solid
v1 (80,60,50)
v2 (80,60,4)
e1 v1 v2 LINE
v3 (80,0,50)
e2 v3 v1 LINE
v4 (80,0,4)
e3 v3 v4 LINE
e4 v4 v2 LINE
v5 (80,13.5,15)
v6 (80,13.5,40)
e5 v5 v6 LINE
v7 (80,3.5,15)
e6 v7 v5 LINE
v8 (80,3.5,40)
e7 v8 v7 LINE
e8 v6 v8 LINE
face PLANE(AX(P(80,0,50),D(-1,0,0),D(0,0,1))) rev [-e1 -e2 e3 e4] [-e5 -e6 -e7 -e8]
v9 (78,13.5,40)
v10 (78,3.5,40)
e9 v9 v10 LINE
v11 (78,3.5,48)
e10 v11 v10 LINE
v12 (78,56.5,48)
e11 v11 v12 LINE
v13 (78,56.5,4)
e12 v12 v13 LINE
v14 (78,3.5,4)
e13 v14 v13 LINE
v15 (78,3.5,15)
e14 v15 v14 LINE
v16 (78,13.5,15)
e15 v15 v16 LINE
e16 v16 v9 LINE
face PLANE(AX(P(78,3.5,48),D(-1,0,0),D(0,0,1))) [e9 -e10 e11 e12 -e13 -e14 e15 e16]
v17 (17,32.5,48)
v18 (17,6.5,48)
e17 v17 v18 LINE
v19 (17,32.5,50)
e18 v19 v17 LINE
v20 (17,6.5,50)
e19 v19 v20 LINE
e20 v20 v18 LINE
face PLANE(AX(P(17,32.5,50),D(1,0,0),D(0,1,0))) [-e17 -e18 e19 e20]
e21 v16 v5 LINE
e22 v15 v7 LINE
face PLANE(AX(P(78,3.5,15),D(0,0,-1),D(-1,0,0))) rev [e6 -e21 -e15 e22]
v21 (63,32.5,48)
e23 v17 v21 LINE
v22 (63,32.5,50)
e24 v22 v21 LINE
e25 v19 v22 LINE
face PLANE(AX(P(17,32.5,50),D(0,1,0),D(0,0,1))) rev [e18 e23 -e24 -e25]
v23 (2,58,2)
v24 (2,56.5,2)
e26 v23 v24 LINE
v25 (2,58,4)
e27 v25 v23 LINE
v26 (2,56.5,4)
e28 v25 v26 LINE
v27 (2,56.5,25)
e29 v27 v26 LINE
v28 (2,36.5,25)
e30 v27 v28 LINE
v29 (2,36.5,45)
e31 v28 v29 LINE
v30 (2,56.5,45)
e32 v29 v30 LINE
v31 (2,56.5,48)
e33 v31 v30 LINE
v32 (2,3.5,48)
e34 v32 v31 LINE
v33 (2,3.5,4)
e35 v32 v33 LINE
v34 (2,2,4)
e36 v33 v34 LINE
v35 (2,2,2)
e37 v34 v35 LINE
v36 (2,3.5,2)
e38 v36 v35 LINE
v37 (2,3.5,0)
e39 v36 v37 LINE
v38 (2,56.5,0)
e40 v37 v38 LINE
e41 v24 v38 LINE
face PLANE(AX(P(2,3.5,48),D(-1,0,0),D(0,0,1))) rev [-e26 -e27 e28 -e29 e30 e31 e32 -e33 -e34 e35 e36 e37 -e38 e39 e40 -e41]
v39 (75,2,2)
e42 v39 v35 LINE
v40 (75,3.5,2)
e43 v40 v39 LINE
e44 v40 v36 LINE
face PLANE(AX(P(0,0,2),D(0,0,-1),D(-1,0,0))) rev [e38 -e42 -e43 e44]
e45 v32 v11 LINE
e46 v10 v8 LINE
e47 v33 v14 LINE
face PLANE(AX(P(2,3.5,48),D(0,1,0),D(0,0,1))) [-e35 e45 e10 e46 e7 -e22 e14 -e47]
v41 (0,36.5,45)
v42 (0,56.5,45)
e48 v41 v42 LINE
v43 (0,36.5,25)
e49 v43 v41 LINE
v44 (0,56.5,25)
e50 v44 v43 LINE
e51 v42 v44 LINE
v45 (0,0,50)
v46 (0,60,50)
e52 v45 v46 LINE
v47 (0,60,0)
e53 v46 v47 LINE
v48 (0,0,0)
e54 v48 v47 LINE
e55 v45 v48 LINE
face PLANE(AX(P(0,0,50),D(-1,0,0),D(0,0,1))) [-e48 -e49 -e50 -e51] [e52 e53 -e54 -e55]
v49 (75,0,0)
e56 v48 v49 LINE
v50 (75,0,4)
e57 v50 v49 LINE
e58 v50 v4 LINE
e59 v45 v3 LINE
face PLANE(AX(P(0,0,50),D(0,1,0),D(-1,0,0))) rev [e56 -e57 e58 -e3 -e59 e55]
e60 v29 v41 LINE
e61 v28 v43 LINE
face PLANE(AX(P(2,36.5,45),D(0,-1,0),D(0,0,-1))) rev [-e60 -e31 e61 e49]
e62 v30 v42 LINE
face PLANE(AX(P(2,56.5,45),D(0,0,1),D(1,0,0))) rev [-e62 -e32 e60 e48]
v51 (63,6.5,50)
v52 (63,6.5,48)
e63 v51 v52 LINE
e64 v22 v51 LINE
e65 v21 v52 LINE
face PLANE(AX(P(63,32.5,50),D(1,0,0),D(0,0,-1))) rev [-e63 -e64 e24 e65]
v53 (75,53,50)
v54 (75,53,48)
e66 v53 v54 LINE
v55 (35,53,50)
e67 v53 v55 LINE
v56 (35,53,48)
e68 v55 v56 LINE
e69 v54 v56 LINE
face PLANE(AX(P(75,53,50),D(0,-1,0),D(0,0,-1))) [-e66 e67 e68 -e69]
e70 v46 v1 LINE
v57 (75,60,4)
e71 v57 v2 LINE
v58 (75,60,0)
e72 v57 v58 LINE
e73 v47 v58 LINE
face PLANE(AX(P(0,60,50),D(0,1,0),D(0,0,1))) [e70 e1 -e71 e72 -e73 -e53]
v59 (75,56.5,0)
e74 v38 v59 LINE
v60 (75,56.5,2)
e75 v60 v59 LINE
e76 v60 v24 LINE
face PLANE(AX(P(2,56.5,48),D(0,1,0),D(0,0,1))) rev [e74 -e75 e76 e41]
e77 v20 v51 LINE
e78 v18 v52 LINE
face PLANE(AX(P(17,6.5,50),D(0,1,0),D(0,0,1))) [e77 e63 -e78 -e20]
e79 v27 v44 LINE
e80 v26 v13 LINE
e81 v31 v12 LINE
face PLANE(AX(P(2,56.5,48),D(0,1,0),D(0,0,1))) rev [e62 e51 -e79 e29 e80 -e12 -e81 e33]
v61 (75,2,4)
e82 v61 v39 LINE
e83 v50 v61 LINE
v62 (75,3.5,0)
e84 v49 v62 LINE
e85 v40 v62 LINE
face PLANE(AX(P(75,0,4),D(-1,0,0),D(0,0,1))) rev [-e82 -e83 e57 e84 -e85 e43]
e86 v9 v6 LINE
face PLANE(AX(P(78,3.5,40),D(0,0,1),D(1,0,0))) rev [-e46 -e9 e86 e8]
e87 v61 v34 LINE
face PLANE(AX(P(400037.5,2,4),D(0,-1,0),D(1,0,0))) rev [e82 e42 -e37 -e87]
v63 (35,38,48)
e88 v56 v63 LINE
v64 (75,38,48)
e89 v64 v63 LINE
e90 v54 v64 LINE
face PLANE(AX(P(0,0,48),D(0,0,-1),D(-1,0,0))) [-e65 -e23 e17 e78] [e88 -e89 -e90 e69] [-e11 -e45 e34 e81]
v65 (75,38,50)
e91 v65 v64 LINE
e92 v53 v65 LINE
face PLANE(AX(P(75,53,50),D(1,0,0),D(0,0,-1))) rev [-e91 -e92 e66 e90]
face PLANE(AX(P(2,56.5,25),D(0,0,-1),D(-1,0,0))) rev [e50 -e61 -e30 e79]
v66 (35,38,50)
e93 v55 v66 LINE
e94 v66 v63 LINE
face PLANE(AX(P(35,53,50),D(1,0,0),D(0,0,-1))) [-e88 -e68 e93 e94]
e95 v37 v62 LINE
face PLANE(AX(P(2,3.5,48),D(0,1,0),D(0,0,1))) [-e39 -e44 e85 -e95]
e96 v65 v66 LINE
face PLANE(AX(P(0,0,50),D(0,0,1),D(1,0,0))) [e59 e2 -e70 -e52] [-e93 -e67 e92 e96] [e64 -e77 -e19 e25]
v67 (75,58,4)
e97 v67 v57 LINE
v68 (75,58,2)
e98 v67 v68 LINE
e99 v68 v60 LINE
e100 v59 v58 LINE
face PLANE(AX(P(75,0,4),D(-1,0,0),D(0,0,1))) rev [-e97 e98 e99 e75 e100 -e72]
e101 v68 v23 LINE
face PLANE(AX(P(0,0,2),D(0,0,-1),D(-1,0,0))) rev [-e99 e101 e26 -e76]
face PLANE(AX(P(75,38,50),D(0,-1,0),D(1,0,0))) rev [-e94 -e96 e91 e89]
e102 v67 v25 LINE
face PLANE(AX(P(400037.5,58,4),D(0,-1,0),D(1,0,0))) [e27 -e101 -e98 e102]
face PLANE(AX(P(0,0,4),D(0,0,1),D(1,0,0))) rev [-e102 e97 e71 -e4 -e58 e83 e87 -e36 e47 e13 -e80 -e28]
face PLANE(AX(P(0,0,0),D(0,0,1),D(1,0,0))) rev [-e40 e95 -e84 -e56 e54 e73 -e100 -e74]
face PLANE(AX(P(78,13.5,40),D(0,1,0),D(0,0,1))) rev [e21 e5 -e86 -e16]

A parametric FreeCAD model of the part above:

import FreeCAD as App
import Part
import Sketcher

V = App.Vector
Q = App.Units.Quantity

doc = App.newDocument("Part")
params = doc.addObject("Spreadsheet::Sheet", "Params")
for row, (alias, value) in enumerate([
    ("sketch1_width", "80 mm"),
    ("sketch1_height", "60 mm"),
    ("pad1_length", "50 mm"),
    ("sketch2_width", "76 mm"),
    ("sketch2_height", "53 mm"),
    ("pocket1_length", "48 mm"),
    ("sketch3_width", "40 mm"),
    ("sketch3_height", "15 mm"),
    ("pocket2_length", "50 mm"),
    ("sketch4_width", "46 mm"),
    ("sketch4_height", "26 mm"),
    ("pocket3_length", "50 mm"),
    ("sketch5_width", "5 mm"),
    ("sketch5_width2", "3 mm"),
    ("sketch5_height", "60 mm"),
    ("sketch5_height2", "53 mm"),
    ("pocket4_length", "4 mm"),
    ("sketch6_width", "73 mm"),
    ("sketch6_height", "56 mm"),
    ("pocket5_length", "2 mm"),
    ("sketch7_width", "20 mm"),
    ("pocket6_length", "2 mm"),
    ("sketch8_width", "10 mm"),
    ("sketch8_height", "25 mm"),
    ("pocket7_length", "2 mm"),
], start=1):
    params.set(f"A{row}", alias)
    params.set(f"B{row}", "=" + value)
    params.setAlias(f"B{row}", alias)

body = doc.addObject("PartDesign::Body", "Body")

# Sketch on XY plane
sketch1 = body.newObject("Sketcher::SketchObject", "Sketch")
sketch1.AttachmentSupport = (doc.getObject("XY_Plane"), [""])
sketch1.MapMode = "FlatFace"
sketch1.addGeometry([
    Part.LineSegment(V(0, 60, 0), V(0, 0, 0)),
    Part.LineSegment(V(0, 0, 0), V(80, 0, 0)),
    Part.LineSegment(V(80, 0, 0), V(80, 60, 0)),
    Part.LineSegment(V(80, 60, 0), V(0, 60, 0)),
], False)
sketch1.addConstraint([
    Sketcher.Constraint("Coincident", 0, 2, 1, 1),
    Sketcher.Constraint("Coincident", 1, 2, 2, 1),
    Sketcher.Constraint("Coincident", 2, 2, 3, 1),
    Sketcher.Constraint("Coincident", 3, 2, 0, 1),
    Sketcher.Constraint("Vertical", 0),
    Sketcher.Constraint("Horizontal", 1),
    Sketcher.Constraint("Vertical", 2),
    Sketcher.Constraint("Horizontal", 3),
    Sketcher.Constraint("Coincident", 0, 2, -1, 1),
    Sketcher.Constraint("DistanceX", 1, 1, 1, 2, Q("80 mm")),
    Sketcher.Constraint("DistanceY", 0, 2, 0, 1, Q("60 mm")),
])
sketch1.setExpression("Constraints[9]", "Params.sketch1_width")
sketch1.setExpression("Constraints[10]", "Params.sketch1_height")
pad1 = body.newObject("PartDesign::Pad", "Pad")
pad1.Profile = sketch1
pad1.setExpression("Length", "Params.pad1_length")

# Sketch on XY plane
sketch2 = body.newObject("Sketcher::SketchObject", "Sketch001")
sketch2.AttachmentSupport = (doc.getObject("XY_Plane"), [""])
sketch2.MapMode = "FlatFace"
sketch2.addGeometry([
    Part.LineSegment(V(2, 56, 0), V(2, 4, 0)),
    Part.LineSegment(V(2, 4, 0), V(78, 4, 0)),
    Part.LineSegment(V(78, 4, 0), V(78, 56, 0)),
    Part.LineSegment(V(78, 56, 0), V(2, 56, 0)),
], False)
sketch2.addConstraint([
    Sketcher.Constraint("Coincident", 0, 2, 1, 1),
    Sketcher.Constraint("Coincident", 1, 2, 2, 1),
    Sketcher.Constraint("Coincident", 2, 2, 3, 1),
    Sketcher.Constraint("Coincident", 3, 2, 0, 1),
    Sketcher.Constraint("Vertical", 0),
    Sketcher.Constraint("Horizontal", 1),
    Sketcher.Constraint("Vertical", 2),
    Sketcher.Constraint("Horizontal", 3),
    Sketcher.Constraint("DistanceX", 1, 1, 1, 2, Q("76 mm")),
    Sketcher.Constraint("DistanceY", 0, 2, 0, 1, Q("53 mm")),
    Sketcher.Constraint("DistanceX", -1, 1, 0, 2, Q("2 mm")),
    Sketcher.Constraint("DistanceY", -1, 1, 0, 2, Q("3.5 mm")),
])
sketch2.setExpression("Constraints[8]", "Params.sketch2_width")
sketch2.setExpression("Constraints[9]", "Params.sketch2_height")
pocket1 = body.newObject("PartDesign::Pocket", "Pocket")
pocket1.Profile = sketch2
pocket1.setExpression("Length", "Params.pocket1_length")
pocket1.Reversed = True

# Sketch on XY plane
sketch3 = body.newObject("Sketcher::SketchObject", "Sketch002")
sketch3.AttachmentSupport = (doc.getObject("XY_Plane"), [""])
sketch3.MapMode = "FlatFace"
sketch3.addGeometry([
    Part.LineSegment(V(35, 53, 0), V(35, 38, 0)),
    Part.LineSegment(V(35, 38, 0), V(75, 38, 0)),
    Part.LineSegment(V(75, 38, 0), V(75, 53, 0)),
    Part.LineSegment(V(75, 53, 0), V(35, 53, 0)),
], False)
sketch3.addConstraint([
    Sketcher.Constraint("Coincident", 0, 2, 1, 1),
    Sketcher.Constraint("Coincident", 1, 2, 2, 1),
    Sketcher.Constraint("Coincident", 2, 2, 3, 1),
    Sketcher.Constraint("Coincident", 3, 2, 0, 1),
    Sketcher.Constraint("Vertical", 0),
    Sketcher.Constraint("Horizontal", 1),
    Sketcher.Constraint("Vertical", 2),
    Sketcher.Constraint("Horizontal", 3),
    Sketcher.Constraint("DistanceX", 1, 1, 1, 2, Q("40 mm")),
    Sketcher.Constraint("DistanceY", 0, 2, 0, 1, Q("15 mm")),
    Sketcher.Constraint("DistanceX", -1, 1, 0, 2, Q("35 mm")),
    Sketcher.Constraint("DistanceY", -1, 1, 0, 2, Q("38 mm")),
])
sketch3.setExpression("Constraints[8]", "Params.sketch3_width")
sketch3.setExpression("Constraints[9]", "Params.sketch3_height")
pocket2 = body.newObject("PartDesign::Pocket", "Pocket001")
pocket2.Profile = sketch3
pocket2.setExpression("Length", "Params.pocket2_length")
pocket2.Reversed = True

# Sketch on XY plane
sketch4 = body.newObject("Sketcher::SketchObject", "Sketch003")
sketch4.AttachmentSupport = (doc.getObject("XY_Plane"), [""])
sketch4.MapMode = "FlatFace"
sketch4.addGeometry([
    Part.LineSegment(V(17, 32, 0), V(17, 6, 0)),
    Part.LineSegment(V(17, 6, 0), V(63, 6, 0)),
    Part.LineSegment(V(63, 6, 0), V(63, 32, 0)),
    Part.LineSegment(V(63, 32, 0), V(17, 32, 0)),
], False)
sketch4.addConstraint([
    Sketcher.Constraint("Coincident", 0, 2, 1, 1),
    Sketcher.Constraint("Coincident", 1, 2, 2, 1),
    Sketcher.Constraint("Coincident", 2, 2, 3, 1),
    Sketcher.Constraint("Coincident", 3, 2, 0, 1),
    Sketcher.Constraint("Vertical", 0),
    Sketcher.Constraint("Horizontal", 1),
    Sketcher.Constraint("Vertical", 2),
    Sketcher.Constraint("Horizontal", 3),
    Sketcher.Constraint("DistanceX", 1, 1, 1, 2, Q("46 mm")),
    Sketcher.Constraint("DistanceY", 0, 2, 0, 1, Q("26 mm")),
    Sketcher.Constraint("DistanceX", -1, 1, 0, 2, Q("17 mm")),
    Sketcher.Constraint("DistanceY", -1, 1, 0, 2, Q("6.5 mm")),
])
sketch4.setExpression("Constraints[8]", "Params.sketch4_width")
sketch4.setExpression("Constraints[9]", "Params.sketch4_height")
pocket3 = body.newObject("PartDesign::Pocket", "Pocket002")
pocket3.Profile = sketch4
pocket3.setExpression("Length", "Params.pocket3_length")
pocket3.Reversed = True

# Sketch on XY plane
sketch5 = body.newObject("Sketcher::SketchObject", "Sketch004")
sketch5.AttachmentSupport = (doc.getObject("XY_Plane"), [""])
sketch5.MapMode = "FlatFace"
sketch5.addGeometry([
    Part.LineSegment(V(75, 0, 0), V(80, 0, 0)),  # 0
    Part.LineSegment(V(80, 0, 0), V(80, 60, 0)),  # 1
    Part.LineSegment(V(80, 60, 0), V(75, 60, 0)),  # 2
    Part.LineSegment(V(75, 60, 0), V(75, 56.5, 0)),  # 3
    Part.LineSegment(V(75, 56.5, 0), V(78, 56.5, 0)),  # 4
    Part.LineSegment(V(78, 56.5, 0), V(78, 3.5, 0)),  # 5
    Part.LineSegment(V(78, 3.5, 0), V(75, 3.5, 0)),  # 6
    Part.LineSegment(V(75, 3.5, 0), V(75, 0, 0)),  # 7
], False)
sketch5.addConstraint([
    Sketcher.Constraint("Coincident", 0, 2, 1, 1),
    Sketcher.Constraint("Coincident", 1, 2, 2, 1),
    Sketcher.Constraint("Coincident", 2, 2, 3, 1),
    Sketcher.Constraint("Coincident", 3, 2, 4, 1),
    Sketcher.Constraint("Coincident", 4, 2, 5, 1),
    Sketcher.Constraint("Coincident", 5, 2, 6, 1),
    Sketcher.Constraint("Coincident", 6, 2, 7, 1),
    Sketcher.Constraint("Coincident", 7, 2, 0, 1),
    Sketcher.Constraint("Horizontal", 0),
    Sketcher.Constraint("Vertical", 1),
    Sketcher.Constraint("Horizontal", 2),
    Sketcher.Constraint("Vertical", 3),
    Sketcher.Constraint("Horizontal", 4),
    Sketcher.Constraint("Vertical", 5),
    Sketcher.Constraint("Horizontal", 6),
    Sketcher.Constraint("Vertical", 7),
    Sketcher.Constraint("PointOnObject", 0, 2, -1),
    Sketcher.Constraint("Vertical", 3, 2, 6, 2),
    Sketcher.Constraint("Equal", 3, 7),
    Sketcher.Constraint("DistanceX", 0, 1, 0, 2, Q("5 mm")),
    Sketcher.Constraint("DistanceX", 4, 1, 4, 2, Q("3 mm")),
    Sketcher.Constraint("DistanceY", 1, 1, 1, 2, Q("60 mm")),
    Sketcher.Constraint("DistanceY", 5, 2, 5, 1, Q("53 mm")),
    Sketcher.Constraint("DistanceX", -1, 1, 0, 2, Q("80 mm")),
])
sketch5.setExpression("Constraints[19]", "Params.sketch5_width")
sketch5.setExpression("Constraints[20]", "Params.sketch5_width2")
sketch5.setExpression("Constraints[21]", "Params.sketch5_height")
sketch5.setExpression("Constraints[22]", "Params.sketch5_height2")
pocket4 = body.newObject("PartDesign::Pocket", "Pocket003")
pocket4.Profile = sketch5
pocket4.setExpression("Length", "Params.pocket4_length")
pocket4.Reversed = True

# Sketch on XY plane
sketch6 = body.newObject("Sketcher::SketchObject", "Sketch005")
sketch6.AttachmentSupport = (doc.getObject("XY_Plane"), [""])
sketch6.MapMode = "FlatFace"
sketch6.AttachmentOffset = App.Placement(V(0, 0, 2), App.Rotation())
sketch6.addGeometry([
    Part.LineSegment(V(2, 58, 0), V(2, 2, 0)),
    Part.LineSegment(V(2, 2, 0), V(75, 2, 0)),
    Part.LineSegment(V(75, 2, 0), V(75, 58, 0)),
    Part.LineSegment(V(75, 58, 0), V(2, 58, 0)),
], False)
sketch6.addConstraint([
    Sketcher.Constraint("Coincident", 0, 2, 1, 1),
    Sketcher.Constraint("Coincident", 1, 2, 2, 1),
    Sketcher.Constraint("Coincident", 2, 2, 3, 1),
    Sketcher.Constraint("Coincident", 3, 2, 0, 1),
    Sketcher.Constraint("Vertical", 0),
    Sketcher.Constraint("Horizontal", 1),
    Sketcher.Constraint("Vertical", 2),
    Sketcher.Constraint("Horizontal", 3),
    Sketcher.Constraint("DistanceX", 1, 1, 1, 2, Q("73 mm")),
    Sketcher.Constraint("DistanceY", 0, 2, 0, 1, Q("56 mm")),
    Sketcher.Constraint("DistanceX", -1, 1, 0, 2, Q("2 mm")),
    Sketcher.Constraint("DistanceY", -1, 1, 0, 2, Q("2 mm")),
])
sketch6.setExpression("Constraints[8]", "Params.sketch6_width")
sketch6.setExpression("Constraints[9]", "Params.sketch6_height")
pocket5 = body.newObject("PartDesign::Pocket", "Pocket004")
pocket5.Profile = sketch6
pocket5.setExpression("Length", "Params.pocket5_length")
pocket5.Reversed = True

# Sketch on YZ plane
sketch7 = body.newObject("Sketcher::SketchObject", "Sketch006")
sketch7.AttachmentSupport = (doc.getObject("YZ_Plane"), [""])
sketch7.MapMode = "FlatFace"
sketch7.addGeometry([
    Part.LineSegment(V(56, 25, 0), V(36, 25, 0)),
    Part.LineSegment(V(36, 25, 0), V(36, 45, 0)),
    Part.LineSegment(V(36, 45, 0), V(56, 45, 0)),
    Part.LineSegment(V(56, 45, 0), V(56, 25, 0)),
], False)
sketch7.addConstraint([
    Sketcher.Constraint("Coincident", 0, 2, 1, 1),
    Sketcher.Constraint("Coincident", 1, 2, 2, 1),
    Sketcher.Constraint("Coincident", 2, 2, 3, 1),
    Sketcher.Constraint("Coincident", 3, 2, 0, 1),
    Sketcher.Constraint("Horizontal", 0),
    Sketcher.Constraint("Vertical", 1),
    Sketcher.Constraint("Horizontal", 2),
    Sketcher.Constraint("Vertical", 3),
    Sketcher.Constraint("Equal", 2, 1),
    Sketcher.Constraint("DistanceX", 0, 2, 0, 1, Q("20 mm")),
    Sketcher.Constraint("DistanceY", -1, 1, 0, 2, Q("25 mm")),
    Sketcher.Constraint("DistanceX", -1, 1, 0, 2, Q("36.5 mm")),
])
sketch7.setExpression("Constraints[9]", "Params.sketch7_width")
pocket6 = body.newObject("PartDesign::Pocket", "Pocket005")
pocket6.Profile = sketch7
pocket6.setExpression("Length", "Params.pocket6_length")
pocket6.Reversed = True

# Sketch on YZ plane
sketch8 = body.newObject("Sketcher::SketchObject", "Sketch007")
sketch8.AttachmentSupport = (doc.getObject("YZ_Plane"), [""])
sketch8.MapMode = "FlatFace"
sketch8.AttachmentOffset = App.Placement(V(0, 0, 80), App.Rotation())
sketch8.addGeometry([
    Part.LineSegment(V(14, 40, 0), V(4, 40, 0)),
    Part.LineSegment(V(4, 40, 0), V(4, 15, 0)),
    Part.LineSegment(V(4, 15, 0), V(14, 15, 0)),
    Part.LineSegment(V(14, 15, 0), V(14, 40, 0)),
], False)
sketch8.addConstraint([
    Sketcher.Constraint("Coincident", 0, 2, 1, 1),
    Sketcher.Constraint("Coincident", 1, 2, 2, 1),
    Sketcher.Constraint("Coincident", 2, 2, 3, 1),
    Sketcher.Constraint("Coincident", 3, 2, 0, 1),
    Sketcher.Constraint("Horizontal", 0),
    Sketcher.Constraint("Vertical", 1),
    Sketcher.Constraint("Horizontal", 2),
    Sketcher.Constraint("Vertical", 3),
    Sketcher.Constraint("DistanceX", 0, 2, 0, 1, Q("10 mm")),
    Sketcher.Constraint("DistanceY", 1, 2, 1, 1, Q("25 mm")),
    Sketcher.Constraint("DistanceY", -1, 1, 0, 2, Q("40 mm")),
    Sketcher.Constraint("DistanceX", -1, 1, 0, 2, Q("3.5 mm")),
])
sketch8.setExpression("Constraints[8]", "Params.sketch8_width")
sketch8.setExpression("Constraints[9]", "Params.sketch8_height")
pocket7 = body.newObject("PartDesign::Pocket", "Pocket006")
pocket7.Profile = sketch8
pocket7.setExpression("Length", "Params.pocket7_length")

doc.recompute()
